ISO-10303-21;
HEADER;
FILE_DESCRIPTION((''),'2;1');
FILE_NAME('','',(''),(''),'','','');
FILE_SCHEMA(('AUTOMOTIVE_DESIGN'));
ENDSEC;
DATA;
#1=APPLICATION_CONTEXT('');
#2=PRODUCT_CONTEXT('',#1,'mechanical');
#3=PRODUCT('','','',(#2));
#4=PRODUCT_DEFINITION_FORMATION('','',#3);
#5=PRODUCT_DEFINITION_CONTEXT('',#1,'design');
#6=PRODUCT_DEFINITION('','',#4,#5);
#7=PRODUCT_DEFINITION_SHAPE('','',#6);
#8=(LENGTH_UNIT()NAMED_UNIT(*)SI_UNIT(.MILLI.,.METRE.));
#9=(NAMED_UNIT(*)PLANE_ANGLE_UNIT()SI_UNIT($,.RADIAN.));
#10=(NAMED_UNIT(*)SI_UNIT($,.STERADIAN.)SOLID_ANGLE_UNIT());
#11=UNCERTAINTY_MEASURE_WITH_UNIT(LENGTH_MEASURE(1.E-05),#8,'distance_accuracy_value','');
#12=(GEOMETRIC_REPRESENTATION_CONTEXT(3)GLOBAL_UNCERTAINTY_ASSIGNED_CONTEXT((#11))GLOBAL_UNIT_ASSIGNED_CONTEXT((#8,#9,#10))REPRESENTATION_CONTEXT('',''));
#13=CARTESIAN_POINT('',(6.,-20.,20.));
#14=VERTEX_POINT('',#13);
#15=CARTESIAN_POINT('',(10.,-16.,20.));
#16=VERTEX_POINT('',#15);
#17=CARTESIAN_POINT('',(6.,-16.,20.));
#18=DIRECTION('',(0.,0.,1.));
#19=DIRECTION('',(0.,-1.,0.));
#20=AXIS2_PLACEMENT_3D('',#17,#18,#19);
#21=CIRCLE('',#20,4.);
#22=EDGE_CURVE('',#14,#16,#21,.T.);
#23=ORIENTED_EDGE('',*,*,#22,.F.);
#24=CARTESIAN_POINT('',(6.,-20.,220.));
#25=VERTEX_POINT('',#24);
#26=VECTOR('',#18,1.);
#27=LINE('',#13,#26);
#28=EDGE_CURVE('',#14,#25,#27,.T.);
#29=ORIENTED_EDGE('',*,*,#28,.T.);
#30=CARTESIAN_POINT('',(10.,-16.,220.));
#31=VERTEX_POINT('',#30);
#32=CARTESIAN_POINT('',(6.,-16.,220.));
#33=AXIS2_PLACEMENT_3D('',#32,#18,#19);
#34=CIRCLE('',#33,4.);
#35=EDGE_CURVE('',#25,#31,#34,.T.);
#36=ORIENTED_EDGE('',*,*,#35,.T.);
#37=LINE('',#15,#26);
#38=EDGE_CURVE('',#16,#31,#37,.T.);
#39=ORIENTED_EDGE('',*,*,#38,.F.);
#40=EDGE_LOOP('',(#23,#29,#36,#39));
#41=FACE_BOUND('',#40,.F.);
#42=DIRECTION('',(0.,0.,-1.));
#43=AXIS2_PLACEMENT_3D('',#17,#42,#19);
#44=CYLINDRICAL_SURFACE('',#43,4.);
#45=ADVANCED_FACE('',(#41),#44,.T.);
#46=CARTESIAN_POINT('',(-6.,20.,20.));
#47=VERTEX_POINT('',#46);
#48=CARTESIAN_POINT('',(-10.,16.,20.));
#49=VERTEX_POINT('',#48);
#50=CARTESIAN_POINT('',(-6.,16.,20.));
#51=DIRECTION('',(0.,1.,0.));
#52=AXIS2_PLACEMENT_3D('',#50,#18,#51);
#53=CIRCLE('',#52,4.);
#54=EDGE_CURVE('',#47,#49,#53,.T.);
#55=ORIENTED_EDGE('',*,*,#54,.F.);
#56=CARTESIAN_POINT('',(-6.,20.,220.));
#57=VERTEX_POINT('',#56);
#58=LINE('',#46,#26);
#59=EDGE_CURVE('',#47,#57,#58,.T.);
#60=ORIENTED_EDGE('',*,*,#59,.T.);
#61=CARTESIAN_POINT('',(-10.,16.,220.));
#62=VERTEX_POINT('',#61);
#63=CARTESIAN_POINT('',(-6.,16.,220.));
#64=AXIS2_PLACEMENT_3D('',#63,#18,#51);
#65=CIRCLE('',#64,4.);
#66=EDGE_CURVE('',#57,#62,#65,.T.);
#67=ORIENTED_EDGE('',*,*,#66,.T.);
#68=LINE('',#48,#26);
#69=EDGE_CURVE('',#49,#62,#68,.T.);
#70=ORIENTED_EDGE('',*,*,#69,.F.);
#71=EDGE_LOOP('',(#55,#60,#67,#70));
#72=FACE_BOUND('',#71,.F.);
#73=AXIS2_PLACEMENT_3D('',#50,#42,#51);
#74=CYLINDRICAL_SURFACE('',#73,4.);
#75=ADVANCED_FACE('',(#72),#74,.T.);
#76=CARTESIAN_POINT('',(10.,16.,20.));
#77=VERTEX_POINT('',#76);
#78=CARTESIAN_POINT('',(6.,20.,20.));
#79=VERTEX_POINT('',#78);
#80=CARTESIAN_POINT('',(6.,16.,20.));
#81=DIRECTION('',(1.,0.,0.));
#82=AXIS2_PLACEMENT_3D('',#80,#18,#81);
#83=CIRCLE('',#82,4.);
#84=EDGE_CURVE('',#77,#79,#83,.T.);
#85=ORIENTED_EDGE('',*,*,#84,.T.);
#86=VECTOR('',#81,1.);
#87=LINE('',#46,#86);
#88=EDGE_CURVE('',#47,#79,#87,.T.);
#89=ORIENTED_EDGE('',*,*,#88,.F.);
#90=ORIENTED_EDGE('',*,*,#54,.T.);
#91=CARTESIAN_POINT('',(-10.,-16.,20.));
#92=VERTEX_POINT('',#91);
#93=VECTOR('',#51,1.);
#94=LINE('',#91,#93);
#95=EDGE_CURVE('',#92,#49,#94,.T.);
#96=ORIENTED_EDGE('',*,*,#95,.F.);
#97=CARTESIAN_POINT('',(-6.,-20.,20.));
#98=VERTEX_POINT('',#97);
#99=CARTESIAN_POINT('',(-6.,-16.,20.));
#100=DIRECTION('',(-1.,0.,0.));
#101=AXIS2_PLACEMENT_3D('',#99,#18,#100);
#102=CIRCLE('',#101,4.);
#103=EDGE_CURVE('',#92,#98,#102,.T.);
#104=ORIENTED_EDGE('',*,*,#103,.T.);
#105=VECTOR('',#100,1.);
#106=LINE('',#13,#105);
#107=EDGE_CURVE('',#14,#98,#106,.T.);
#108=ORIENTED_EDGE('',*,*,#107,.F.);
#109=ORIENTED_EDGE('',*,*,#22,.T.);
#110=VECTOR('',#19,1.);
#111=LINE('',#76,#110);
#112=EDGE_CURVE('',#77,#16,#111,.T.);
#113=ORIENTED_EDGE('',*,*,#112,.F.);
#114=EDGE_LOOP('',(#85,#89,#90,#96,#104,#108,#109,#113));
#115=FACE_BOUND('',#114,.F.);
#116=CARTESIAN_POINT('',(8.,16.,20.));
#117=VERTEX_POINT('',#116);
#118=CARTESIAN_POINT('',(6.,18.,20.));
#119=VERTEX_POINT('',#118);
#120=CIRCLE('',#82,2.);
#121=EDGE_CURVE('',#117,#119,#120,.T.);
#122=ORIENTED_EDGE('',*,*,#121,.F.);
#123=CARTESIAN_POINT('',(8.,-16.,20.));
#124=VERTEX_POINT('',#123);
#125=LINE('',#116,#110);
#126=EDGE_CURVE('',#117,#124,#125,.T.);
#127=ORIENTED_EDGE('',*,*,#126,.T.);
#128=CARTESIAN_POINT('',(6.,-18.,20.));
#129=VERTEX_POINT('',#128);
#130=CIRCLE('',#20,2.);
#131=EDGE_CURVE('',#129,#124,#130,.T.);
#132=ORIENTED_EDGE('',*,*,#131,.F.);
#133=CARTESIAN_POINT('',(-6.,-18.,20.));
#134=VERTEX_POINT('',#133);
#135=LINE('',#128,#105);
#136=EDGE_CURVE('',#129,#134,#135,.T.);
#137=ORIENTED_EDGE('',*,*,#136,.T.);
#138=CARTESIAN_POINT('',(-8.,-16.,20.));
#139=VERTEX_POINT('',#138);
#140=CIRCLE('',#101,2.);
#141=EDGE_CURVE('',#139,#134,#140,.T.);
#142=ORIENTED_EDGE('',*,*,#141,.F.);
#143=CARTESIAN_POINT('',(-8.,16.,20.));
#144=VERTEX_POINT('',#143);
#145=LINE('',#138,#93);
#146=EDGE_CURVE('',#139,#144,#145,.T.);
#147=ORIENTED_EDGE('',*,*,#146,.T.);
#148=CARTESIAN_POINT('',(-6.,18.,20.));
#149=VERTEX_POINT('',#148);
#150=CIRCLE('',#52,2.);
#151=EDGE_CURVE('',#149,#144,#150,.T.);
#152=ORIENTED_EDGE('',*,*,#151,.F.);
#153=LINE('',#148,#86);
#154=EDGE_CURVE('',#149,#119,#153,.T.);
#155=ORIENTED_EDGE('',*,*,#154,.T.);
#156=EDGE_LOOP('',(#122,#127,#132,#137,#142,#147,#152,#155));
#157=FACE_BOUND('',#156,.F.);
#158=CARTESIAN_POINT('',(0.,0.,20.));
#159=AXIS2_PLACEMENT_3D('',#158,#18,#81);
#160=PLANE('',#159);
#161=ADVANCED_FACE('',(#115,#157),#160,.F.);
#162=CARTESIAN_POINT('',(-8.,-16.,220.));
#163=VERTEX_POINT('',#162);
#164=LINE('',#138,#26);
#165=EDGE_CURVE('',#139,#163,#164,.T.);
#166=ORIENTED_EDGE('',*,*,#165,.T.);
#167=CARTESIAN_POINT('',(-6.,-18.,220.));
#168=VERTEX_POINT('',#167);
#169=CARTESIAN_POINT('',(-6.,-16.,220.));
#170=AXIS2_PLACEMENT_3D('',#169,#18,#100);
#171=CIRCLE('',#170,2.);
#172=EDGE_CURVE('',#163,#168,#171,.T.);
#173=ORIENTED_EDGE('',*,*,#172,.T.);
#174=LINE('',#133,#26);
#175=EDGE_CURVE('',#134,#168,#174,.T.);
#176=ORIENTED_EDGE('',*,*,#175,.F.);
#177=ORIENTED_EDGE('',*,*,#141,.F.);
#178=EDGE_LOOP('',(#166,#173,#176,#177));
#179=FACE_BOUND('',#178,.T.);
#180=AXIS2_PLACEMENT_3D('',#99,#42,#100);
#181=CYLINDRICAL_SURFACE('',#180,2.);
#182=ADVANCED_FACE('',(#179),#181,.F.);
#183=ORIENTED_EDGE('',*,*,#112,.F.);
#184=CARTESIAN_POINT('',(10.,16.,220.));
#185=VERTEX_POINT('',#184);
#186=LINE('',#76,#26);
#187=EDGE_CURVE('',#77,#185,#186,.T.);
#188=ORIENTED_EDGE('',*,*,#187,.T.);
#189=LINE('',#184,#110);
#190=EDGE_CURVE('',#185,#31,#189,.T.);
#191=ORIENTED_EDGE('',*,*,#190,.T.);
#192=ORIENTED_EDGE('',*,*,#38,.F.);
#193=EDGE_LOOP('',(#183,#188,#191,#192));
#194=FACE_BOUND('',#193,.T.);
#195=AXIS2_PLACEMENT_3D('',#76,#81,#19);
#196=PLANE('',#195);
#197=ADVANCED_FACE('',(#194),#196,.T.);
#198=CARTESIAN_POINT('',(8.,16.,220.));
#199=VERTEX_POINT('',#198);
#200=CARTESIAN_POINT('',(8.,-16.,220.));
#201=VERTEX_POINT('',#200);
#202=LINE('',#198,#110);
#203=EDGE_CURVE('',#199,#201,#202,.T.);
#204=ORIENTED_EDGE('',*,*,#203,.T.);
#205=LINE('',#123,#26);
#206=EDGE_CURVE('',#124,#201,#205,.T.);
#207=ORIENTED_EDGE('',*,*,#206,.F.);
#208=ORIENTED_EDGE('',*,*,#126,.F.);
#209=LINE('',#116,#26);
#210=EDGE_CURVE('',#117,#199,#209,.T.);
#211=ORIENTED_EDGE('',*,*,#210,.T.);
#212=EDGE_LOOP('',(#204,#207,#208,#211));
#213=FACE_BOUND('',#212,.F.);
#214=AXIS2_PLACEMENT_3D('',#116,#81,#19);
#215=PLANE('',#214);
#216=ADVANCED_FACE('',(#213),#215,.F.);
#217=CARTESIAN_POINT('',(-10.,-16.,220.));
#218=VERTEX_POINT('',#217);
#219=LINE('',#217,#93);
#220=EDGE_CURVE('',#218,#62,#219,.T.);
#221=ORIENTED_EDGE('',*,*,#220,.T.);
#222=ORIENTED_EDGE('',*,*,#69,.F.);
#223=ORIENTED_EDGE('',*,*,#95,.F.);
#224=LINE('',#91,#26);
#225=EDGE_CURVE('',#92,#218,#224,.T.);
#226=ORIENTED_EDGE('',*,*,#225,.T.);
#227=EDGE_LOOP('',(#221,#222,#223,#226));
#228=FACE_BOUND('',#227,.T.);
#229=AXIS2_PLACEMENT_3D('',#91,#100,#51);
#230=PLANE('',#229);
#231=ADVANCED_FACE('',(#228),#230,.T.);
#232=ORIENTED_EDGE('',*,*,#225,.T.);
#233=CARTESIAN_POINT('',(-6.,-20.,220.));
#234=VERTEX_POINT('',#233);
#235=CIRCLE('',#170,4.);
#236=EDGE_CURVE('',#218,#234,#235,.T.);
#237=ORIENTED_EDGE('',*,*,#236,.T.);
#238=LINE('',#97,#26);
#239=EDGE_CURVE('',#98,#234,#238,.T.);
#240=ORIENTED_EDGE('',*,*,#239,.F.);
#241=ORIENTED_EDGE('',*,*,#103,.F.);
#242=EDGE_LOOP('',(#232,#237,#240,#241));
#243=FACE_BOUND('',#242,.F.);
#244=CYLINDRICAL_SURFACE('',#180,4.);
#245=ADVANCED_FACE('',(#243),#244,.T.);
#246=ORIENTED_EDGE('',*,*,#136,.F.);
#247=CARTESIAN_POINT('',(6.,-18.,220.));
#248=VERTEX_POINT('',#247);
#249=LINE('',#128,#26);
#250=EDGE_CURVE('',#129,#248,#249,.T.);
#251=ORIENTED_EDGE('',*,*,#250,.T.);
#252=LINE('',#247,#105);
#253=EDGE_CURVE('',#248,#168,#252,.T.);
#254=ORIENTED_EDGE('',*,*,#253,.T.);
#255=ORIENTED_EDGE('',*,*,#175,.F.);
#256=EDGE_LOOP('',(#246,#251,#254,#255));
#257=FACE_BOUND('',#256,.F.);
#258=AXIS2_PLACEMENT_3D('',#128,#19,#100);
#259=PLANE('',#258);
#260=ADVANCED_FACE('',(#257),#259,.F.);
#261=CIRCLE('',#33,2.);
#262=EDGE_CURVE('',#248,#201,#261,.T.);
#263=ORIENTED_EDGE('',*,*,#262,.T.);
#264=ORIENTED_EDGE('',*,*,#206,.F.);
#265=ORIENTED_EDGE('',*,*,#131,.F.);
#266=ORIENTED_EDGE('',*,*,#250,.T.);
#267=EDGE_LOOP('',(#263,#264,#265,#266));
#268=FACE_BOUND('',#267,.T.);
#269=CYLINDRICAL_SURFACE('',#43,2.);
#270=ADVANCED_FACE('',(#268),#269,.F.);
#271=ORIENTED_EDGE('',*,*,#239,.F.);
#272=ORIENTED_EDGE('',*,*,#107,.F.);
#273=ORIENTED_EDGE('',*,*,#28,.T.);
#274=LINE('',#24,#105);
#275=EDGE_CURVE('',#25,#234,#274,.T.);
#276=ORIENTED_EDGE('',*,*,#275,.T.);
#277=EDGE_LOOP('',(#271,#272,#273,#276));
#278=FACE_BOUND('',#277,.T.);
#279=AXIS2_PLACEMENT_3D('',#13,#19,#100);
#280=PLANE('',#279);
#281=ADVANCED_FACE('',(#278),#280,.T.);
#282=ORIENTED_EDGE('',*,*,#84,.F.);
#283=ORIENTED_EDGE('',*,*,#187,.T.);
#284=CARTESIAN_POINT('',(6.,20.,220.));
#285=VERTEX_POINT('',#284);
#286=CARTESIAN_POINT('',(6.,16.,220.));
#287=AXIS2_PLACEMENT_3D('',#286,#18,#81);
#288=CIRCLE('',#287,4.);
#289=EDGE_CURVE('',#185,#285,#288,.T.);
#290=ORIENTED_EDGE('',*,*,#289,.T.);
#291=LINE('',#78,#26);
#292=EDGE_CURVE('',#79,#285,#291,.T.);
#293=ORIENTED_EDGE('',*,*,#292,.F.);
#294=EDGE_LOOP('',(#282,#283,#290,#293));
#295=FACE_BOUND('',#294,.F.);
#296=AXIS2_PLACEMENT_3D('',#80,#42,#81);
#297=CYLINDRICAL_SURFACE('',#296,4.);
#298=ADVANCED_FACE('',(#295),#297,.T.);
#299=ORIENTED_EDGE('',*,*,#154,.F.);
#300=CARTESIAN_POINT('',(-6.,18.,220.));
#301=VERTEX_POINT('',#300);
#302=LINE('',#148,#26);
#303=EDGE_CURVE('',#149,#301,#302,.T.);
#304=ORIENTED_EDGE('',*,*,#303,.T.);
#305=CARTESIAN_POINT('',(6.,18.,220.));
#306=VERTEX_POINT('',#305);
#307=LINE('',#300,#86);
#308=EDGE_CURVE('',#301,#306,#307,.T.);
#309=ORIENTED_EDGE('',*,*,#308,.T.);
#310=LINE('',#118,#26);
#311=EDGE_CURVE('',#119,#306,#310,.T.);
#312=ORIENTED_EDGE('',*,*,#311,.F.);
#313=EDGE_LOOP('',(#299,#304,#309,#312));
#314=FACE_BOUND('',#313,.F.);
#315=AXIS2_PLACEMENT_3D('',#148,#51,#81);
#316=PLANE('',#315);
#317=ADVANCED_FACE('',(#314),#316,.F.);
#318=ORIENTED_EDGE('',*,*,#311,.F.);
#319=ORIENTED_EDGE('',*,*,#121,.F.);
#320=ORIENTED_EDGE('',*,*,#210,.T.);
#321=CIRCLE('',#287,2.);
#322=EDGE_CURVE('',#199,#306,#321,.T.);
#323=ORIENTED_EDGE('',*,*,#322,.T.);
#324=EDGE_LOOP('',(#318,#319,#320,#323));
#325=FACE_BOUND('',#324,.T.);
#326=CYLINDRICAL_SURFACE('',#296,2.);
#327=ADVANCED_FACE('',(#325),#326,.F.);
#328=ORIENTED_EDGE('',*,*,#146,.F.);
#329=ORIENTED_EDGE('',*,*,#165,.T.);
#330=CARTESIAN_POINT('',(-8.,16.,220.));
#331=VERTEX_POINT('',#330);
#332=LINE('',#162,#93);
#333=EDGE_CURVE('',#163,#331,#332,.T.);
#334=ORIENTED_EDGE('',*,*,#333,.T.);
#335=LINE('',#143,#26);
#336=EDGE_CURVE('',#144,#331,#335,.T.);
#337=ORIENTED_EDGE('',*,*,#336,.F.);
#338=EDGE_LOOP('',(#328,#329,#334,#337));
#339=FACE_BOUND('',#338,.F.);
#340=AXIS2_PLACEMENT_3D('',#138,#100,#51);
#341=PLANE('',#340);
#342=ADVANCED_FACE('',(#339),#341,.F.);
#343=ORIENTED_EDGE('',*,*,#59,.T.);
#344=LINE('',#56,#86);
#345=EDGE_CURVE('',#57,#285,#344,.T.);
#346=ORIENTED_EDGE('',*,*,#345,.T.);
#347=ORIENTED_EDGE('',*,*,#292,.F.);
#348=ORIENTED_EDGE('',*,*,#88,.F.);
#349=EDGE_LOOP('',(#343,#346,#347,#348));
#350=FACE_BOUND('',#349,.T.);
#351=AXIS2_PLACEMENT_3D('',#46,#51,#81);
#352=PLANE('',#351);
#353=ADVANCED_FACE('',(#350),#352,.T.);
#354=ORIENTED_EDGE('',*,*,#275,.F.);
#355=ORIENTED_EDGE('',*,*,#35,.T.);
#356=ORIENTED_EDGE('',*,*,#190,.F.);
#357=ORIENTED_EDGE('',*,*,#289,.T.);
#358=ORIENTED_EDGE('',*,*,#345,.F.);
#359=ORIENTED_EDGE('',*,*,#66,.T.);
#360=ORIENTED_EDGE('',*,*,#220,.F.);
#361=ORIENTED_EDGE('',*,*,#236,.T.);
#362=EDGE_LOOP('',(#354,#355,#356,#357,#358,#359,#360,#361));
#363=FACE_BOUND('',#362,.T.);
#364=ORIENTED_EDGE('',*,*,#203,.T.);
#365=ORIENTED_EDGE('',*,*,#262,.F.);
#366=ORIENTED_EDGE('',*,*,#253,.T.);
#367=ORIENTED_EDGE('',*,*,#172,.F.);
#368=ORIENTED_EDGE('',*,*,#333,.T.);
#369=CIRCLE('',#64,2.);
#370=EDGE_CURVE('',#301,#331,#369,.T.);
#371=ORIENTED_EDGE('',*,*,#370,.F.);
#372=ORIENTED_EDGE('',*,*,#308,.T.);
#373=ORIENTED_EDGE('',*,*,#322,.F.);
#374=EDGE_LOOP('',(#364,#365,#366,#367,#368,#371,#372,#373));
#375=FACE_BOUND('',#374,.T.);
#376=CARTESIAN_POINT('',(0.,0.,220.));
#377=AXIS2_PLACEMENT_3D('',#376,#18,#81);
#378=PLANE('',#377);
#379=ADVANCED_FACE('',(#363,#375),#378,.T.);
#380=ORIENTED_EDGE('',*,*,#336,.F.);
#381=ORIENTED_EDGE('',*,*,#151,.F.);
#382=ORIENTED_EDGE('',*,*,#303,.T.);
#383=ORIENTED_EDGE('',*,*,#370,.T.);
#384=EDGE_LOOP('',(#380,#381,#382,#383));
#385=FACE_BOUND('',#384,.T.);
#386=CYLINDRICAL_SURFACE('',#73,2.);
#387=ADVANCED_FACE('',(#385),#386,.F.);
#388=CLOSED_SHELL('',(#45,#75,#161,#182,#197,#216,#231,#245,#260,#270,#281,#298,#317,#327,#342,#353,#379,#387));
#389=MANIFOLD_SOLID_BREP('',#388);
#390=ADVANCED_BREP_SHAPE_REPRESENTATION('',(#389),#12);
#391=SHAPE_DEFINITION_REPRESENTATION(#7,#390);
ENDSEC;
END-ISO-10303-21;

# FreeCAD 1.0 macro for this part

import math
import FreeCAD as App
import Part
import Sketcher

V = App.Vector

doc = App.newDocument("Part")
body = doc.addObject("PartDesign::Body", "Body")

sketch1 = body.newObject("Sketcher::SketchObject", "Sketch")
sketch1.AttachmentSupport = (doc.getObject("XY_Plane"), [""])
sketch1.MapMode = "FlatFace"
sketch1.AttachmentOffset = App.Placement(V(0, 0, 20), App.Rotation())
sketch1.addGeometry([
    Part.LineSegment(V(-10, 16, 0), V(-10, -16, 0)),
    Part.ArcOfCircle(Part.Circle(V(-6, -16, 0), V(0, 0, 1), 4), math.radians(180), math.radians(270)),
    Part.LineSegment(V(-6, -20, 0), V(6, -20, 0)),
    Part.ArcOfCircle(Part.Circle(V(6, -16, 0), V(0, 0, 1), 4), math.radians(-90), math.radians(0)),
    Part.LineSegment(V(10, -16, 0), V(10, 16, 0)),
    Part.ArcOfCircle(Part.Circle(V(6, 16, 0), V(0, 0, 1), 4), math.radians(0), math.radians(90)),
    Part.LineSegment(V(6, 20, 0), V(-6, 20, 0)),
    Part.ArcOfCircle(Part.Circle(V(-6, 16, 0), V(0, 0, 1), 4), math.radians(90), math.radians(180)),
    Part.ArcOfCircle(Part.Circle(V(-6, 16, 0), V(0, 0, 1), 2), math.radians(90), math.radians(180)),
    Part.LineSegment(V(-6, 18, 0), V(6, 18, 0)),
    Part.ArcOfCircle(Part.Circle(V(6, 16, 0), V(0, 0, 1), 2), math.radians(0), math.radians(90)),
    Part.LineSegment(V(8, 16, 0), V(8, -16, 0)),
    Part.ArcOfCircle(Part.Circle(V(6, -16, 0), V(0, 0, 1), 2), math.radians(-90), math.radians(0)),
    Part.LineSegment(V(6, -18, 0), V(-6, -18, 0)),
    Part.ArcOfCircle(Part.Circle(V(-6, -16, 0), V(0, 0, 1), 2), math.radians(180), math.radians(270)),
    Part.LineSegment(V(-8, -16, 0), V(-8, 16, 0)),
], False)
sketch1.addConstraint([
    Sketcher.Constraint("Tangent", 0, 2, 1, 1),
    Sketcher.Constraint("Tangent", 1, 2, 2, 1),
    Sketcher.Constraint("Tangent", 2, 2, 3, 1),
    Sketcher.Constraint("Tangent", 3, 2, 4, 1),
    Sketcher.Constraint("Tangent", 4, 2, 5, 1),
    Sketcher.Constraint("Tangent", 5, 2, 6, 1),
    Sketcher.Constraint("Tangent", 6, 2, 7, 1),
    Sketcher.Constraint("Tangent", 7, 2, 0, 1),
    Sketcher.Constraint("Tangent", 8, 1, 9, 1),
    Sketcher.Constraint("Tangent", 9, 2, 10, 2),
    Sketcher.Constraint("Tangent", 10, 1, 11, 1),
    Sketcher.Constraint("Tangent", 11, 2, 12, 2),
    Sketcher.Constraint("Tangent", 12, 1, 13, 1),
    Sketcher.Constraint("Tangent", 13, 2, 14, 2),
    Sketcher.Constraint("Tangent", 14, 1, 15, 1),
    Sketcher.Constraint("Tangent", 15, 2, 8, 2),
    Sketcher.Constraint("Vertical", 0),
    Sketcher.Constraint("Horizontal", 2),
    Sketcher.Constraint("Vertical", 4),
    Sketcher.Constraint("Horizontal", 6),
    Sketcher.Constraint("Horizontal", 9),
    Sketcher.Constraint("Vertical", 11),
    Sketcher.Constraint("Horizontal", 13),
    Sketcher.Constraint("Vertical", 15),
    Sketcher.Constraint("Coincident", 8, 3, 7, 3),
    Sketcher.Constraint("Coincident", 10, 3, 5, 3),
    Sketcher.Constraint("Coincident", 12, 3, 3, 3),
    Sketcher.Constraint("Equal", 1, 3),
    Sketcher.Constraint("Equal", 3, 5),
    Sketcher.Constraint("Equal", 5, 7),
    Sketcher.Constraint("Equal", 12, 14),
    Sketcher.Constraint("Symmetric", 1, 3, 5, 3, -1, 1),
    Sketcher.Constraint("Radius", 1, 4.0),
    Sketcher.Constraint("Radius", 8, 2.0),
    Sketcher.Constraint("DistanceX", 0, 2, -1, 1, 10.0),
    Sketcher.Constraint("DistanceY", 1, 2, -1, 1, 20.0),
])
pad1 = body.newObject("PartDesign::Pad", "Pad")
pad1.Profile = sketch1
pad1.Length = 200

doc.recompute()
